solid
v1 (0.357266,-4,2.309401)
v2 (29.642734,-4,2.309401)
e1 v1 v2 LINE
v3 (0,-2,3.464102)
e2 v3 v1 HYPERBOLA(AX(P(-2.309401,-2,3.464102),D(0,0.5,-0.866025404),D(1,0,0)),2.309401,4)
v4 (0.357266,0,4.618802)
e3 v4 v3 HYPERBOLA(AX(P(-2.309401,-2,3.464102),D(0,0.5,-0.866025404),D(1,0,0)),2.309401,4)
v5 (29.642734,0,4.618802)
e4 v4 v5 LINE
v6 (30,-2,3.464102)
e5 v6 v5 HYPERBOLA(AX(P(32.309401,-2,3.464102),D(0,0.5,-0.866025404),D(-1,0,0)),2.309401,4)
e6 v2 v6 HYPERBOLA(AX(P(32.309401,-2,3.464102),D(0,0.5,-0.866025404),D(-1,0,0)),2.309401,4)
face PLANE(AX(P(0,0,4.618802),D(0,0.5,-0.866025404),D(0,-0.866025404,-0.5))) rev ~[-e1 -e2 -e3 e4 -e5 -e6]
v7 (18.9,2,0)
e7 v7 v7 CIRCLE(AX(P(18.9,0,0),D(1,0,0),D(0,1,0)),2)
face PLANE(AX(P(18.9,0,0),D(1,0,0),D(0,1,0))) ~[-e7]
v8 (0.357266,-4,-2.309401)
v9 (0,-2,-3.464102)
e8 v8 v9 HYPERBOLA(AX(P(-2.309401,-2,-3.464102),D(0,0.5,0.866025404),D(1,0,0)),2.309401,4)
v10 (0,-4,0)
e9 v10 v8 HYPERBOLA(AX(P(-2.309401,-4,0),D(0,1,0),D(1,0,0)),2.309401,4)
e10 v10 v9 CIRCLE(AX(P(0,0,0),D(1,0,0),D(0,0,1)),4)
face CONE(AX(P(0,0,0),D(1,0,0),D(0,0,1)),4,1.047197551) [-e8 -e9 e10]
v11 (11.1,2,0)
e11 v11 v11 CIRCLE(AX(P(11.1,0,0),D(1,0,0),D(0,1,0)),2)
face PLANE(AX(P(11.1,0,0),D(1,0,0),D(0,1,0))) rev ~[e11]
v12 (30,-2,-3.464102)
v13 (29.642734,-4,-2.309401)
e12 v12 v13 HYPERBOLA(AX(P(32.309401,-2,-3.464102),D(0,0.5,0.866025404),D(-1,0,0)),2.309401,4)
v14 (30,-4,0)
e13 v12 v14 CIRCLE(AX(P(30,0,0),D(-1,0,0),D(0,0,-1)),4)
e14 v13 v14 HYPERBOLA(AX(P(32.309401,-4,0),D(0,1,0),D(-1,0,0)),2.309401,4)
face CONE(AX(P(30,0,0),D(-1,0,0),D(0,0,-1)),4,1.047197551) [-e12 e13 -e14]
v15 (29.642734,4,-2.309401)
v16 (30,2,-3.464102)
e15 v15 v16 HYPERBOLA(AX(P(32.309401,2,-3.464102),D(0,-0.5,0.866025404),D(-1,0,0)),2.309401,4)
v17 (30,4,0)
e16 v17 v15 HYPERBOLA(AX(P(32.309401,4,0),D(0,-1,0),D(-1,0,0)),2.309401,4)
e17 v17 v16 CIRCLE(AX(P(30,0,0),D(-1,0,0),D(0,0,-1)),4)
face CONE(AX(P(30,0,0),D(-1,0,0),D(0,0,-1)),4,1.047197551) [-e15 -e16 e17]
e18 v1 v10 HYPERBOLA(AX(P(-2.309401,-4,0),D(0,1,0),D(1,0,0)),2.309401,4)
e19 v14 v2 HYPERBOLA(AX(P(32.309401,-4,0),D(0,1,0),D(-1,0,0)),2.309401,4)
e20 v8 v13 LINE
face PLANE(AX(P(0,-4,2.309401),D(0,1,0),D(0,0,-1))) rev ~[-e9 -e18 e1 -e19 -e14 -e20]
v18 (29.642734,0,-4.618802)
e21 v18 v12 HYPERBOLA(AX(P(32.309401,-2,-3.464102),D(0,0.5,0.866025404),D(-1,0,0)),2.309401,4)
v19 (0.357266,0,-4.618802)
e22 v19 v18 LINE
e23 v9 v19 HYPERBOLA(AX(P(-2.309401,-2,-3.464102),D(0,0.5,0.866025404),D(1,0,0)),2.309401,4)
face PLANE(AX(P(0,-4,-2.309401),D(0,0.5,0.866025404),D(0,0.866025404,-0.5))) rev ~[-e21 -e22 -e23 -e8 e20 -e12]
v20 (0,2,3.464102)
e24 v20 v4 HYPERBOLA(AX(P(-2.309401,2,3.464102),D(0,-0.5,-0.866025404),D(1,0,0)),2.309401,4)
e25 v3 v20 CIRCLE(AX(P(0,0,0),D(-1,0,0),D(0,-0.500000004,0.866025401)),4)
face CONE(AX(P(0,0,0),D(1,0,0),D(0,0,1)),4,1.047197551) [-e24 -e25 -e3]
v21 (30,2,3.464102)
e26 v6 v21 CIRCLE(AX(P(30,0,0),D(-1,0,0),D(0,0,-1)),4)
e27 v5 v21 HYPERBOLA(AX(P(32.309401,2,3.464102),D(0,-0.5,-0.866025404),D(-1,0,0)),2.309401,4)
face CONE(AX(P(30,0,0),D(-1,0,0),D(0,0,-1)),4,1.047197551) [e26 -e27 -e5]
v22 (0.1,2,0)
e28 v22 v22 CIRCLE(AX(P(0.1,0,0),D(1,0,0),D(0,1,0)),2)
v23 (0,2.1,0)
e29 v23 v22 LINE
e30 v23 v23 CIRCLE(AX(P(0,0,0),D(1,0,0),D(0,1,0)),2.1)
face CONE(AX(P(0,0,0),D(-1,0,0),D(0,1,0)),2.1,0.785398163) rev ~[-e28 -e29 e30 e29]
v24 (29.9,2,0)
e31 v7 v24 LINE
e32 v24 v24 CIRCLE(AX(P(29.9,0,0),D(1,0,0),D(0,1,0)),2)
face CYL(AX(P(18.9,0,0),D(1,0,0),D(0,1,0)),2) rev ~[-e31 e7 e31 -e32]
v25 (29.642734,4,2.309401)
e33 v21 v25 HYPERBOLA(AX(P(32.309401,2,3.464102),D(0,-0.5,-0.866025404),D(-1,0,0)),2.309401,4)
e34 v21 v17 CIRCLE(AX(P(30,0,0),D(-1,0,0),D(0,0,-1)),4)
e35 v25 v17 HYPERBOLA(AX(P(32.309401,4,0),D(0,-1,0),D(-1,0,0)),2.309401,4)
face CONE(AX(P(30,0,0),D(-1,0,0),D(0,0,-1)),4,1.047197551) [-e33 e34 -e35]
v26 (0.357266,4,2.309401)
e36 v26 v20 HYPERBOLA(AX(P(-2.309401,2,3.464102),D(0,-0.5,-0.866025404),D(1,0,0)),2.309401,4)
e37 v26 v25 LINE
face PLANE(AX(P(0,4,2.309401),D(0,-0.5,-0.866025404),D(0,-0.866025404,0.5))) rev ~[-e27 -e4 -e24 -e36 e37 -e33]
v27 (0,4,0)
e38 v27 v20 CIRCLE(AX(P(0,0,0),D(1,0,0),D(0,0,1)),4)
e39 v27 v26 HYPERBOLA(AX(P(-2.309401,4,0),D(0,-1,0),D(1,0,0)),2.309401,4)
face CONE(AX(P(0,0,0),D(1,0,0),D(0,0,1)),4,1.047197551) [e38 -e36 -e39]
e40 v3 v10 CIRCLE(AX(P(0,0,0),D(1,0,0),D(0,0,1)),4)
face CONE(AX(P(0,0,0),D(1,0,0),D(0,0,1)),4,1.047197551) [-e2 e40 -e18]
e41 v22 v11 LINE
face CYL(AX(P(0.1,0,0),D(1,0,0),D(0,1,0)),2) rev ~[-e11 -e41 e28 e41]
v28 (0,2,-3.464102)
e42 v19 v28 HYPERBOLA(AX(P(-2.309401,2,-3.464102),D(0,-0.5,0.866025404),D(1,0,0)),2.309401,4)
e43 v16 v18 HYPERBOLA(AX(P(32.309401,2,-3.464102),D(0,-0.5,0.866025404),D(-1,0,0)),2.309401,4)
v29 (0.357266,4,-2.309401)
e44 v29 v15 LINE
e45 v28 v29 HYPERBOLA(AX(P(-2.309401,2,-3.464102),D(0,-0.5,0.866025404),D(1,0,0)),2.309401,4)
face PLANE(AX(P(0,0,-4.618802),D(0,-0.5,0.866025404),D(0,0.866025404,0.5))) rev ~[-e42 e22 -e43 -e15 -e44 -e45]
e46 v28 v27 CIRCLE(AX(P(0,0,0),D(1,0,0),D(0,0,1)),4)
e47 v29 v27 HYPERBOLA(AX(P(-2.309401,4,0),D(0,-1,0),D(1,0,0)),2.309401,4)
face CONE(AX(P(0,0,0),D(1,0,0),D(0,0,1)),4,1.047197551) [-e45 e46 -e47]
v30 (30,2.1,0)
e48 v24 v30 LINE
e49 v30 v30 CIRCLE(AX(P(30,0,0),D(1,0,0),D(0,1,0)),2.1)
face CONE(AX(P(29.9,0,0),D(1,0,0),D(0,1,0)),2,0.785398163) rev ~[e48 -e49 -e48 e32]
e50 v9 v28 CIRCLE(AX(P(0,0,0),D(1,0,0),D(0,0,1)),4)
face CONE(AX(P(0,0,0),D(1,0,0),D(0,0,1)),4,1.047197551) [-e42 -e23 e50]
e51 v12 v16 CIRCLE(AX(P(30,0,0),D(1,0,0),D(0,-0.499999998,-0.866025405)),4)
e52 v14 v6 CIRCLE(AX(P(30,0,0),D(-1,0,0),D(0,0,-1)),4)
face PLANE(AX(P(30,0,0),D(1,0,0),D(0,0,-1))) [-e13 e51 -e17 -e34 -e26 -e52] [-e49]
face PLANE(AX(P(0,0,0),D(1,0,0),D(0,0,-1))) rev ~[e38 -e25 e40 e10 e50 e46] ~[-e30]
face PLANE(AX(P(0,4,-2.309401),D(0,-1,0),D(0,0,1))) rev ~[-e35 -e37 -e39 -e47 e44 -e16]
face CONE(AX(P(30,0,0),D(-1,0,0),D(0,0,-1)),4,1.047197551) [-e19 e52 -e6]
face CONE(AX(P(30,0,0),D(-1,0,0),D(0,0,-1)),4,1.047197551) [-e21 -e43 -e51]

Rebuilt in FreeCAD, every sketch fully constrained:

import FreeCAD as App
import Part
import Sketcher
Q = App.Units.Quantity

doc = App.newDocument("Part")
params = doc.addObject("Spreadsheet::Sheet", "Params")
for row, (alias, value) in enumerate([
    ("pad1_length", "30 mm"),
    ("sketch2_width", "11 mm"),
    ("sketch2_height", "2 mm"),
    ("sketch2_width2", "11.1 mm"),
    ("groove_angle", "360 deg"),
    ("sketch3_diameter", "8 mm"),
    ("pocket1_length", "31 mm"),
    ("pocket1_taper", "60 deg"),
    ("sketch4_diameter", "8 mm"),
    ("pocket2_length", "31 mm"),
    ("pocket2_taper", "60 deg"),
], start=1):
    params.set(f"A{row}", alias)
    params.set(f"B{row}", "=" + value)
    params.setAlias(f"B{row}", alias)

body = doc.addObject("PartDesign::Body", "Body")

# Sketch on YZ plane
sketch1 = doc.addObject("Sketcher::SketchObject", "Sketch")
body.addObject(sketch1)
sketch1.AttachmentSupport = (doc.YZ_Plane, [""])
sketch1.MapMode = "FlatFace"
sketch1.addGeometry(Part.LineSegment(App.Vector(4, -2.3, 0), App.Vector(4, 2.3, 0)), False)
sketch1.addGeometry(Part.LineSegment(App.Vector(4, 2.3, 0), App.Vector(0, 4.6, 0)), False)
sketch1.addGeometry(Part.LineSegment(App.Vector(0, 4.6, 0), App.Vector(-4, 2.3, 0)), False)
sketch1.addGeometry(Part.LineSegment(App.Vector(-4, 2.3, 0), App.Vector(-4, -2.3, 0)), False)
sketch1.addGeometry(Part.LineSegment(App.Vector(-4, -2.3, 0), App.Vector(0, -4.6, 0)), False)
sketch1.addGeometry(Part.LineSegment(App.Vector(0, -4.6, 0), App.Vector(4, -2.3, 0)), False)
sketch1.addConstraint(Sketcher.Constraint("Coincident", 0, 2, 1, 1))
sketch1.addConstraint(Sketcher.Constraint("Coincident", 1, 2, 2, 1))
sketch1.addConstraint(Sketcher.Constraint("Coincident", 2, 2, 3, 1))
sketch1.addConstraint(Sketcher.Constraint("Coincident", 3, 2, 4, 1))
sketch1.addConstraint(Sketcher.Constraint("Coincident", 4, 2, 5, 1))
sketch1.addConstraint(Sketcher.Constraint("Coincident", 5, 2, 0, 1))
sketch1.addConstraint(Sketcher.Constraint("Vertical", 0))
sketch1.addConstraint(Sketcher.Constraint("Vertical", 3))
sketch1.addConstraint(Sketcher.Constraint("Symmetric", 0, 2, 3, 2, -1, 1))
sketch1.addConstraint(Sketcher.Constraint("Symmetric", 1, 2, 4, 2, -1, 1))
sketch1.addConstraint(Sketcher.Constraint("PointOnObject", 1, 2, -2))
sketch1.addConstraint(Sketcher.Constraint("Parallel", 2, 5))
sketch1.addConstraint(Sketcher.Constraint("Horizontal", 0, 2, 2, 2))
sketch1.addConstraint(Sketcher.Constraint("Angle", 1, Q("150 deg")))
sketch1.addConstraint(Sketcher.Constraint("DistanceX", -1, 1, 0, 2, Q("4 mm")))
sketch1.addConstraint(Sketcher.Constraint("DistanceY", -1, 1, 0, 2, Q("2.309401 mm")))
pad1 = doc.addObject("PartDesign::Pad", "Pad")
body.addObject(pad1)
pad1.Profile = sketch1
pad1.setExpression("Length", "Params.pad1_length")

# Sketch on XY plane
sketch2 = doc.addObject("Sketcher::SketchObject", "Sketch001")
body.addObject(sketch2)
sketch2.AttachmentSupport = (doc.XY_Plane, [""])
sketch2.MapMode = "FlatFace"
sketch2.addGeometry(Part.LineSegment(App.Vector(0.1, 2, 0), App.Vector(0, 2.1, 0)), False)
sketch2.addGeometry(Part.LineSegment(App.Vector(0, 2.1, 0), App.Vector(0, 0, 0)), False)
sketch2.addGeometry(Part.LineSegment(App.Vector(0, 0, 0), App.Vector(11.1, 0, 0)), False)
sketch2.addGeometry(Part.LineSegment(App.Vector(11.1, 0, 0), App.Vector(11.1, 2, 0)), False)
sketch2.addGeometry(Part.LineSegment(App.Vector(11.1, 2, 0), App.Vector(0.1, 2, 0)), False)
sketch2.addGeometry(Part.LineSegment(App.Vector(18.9, 0, 0), App.Vector(30, 0, 0)), False)
sketch2.addGeometry(Part.LineSegment(App.Vector(30, 0, 0), App.Vector(30, 2.1, 0)), False)
sketch2.addGeometry(Part.LineSegment(App.Vector(30, 2.1, 0), App.Vector(29.9, 2, 0)), False)
sketch2.addGeometry(Part.LineSegment(App.Vector(29.9, 2, 0), App.Vector(18.9, 2, 0)), False)
sketch2.addGeometry(Part.LineSegment(App.Vector(18.9, 2, 0), App.Vector(18.9, 0, 0)), False)
sketch2.addConstraint(Sketcher.Constraint("Coincident", 0, 2, 1, 1))
sketch2.addConstraint(Sketcher.Constraint("Coincident", 1, 2, 2, 1))
sketch2.addConstraint(Sketcher.Constraint("Coincident", 2, 2, 3, 1))
sketch2.addConstraint(Sketcher.Constraint("Coincident", 3, 2, 4, 1))
sketch2.addConstraint(Sketcher.Constraint("Coincident", 4, 2, 0, 1))
sketch2.addConstraint(Sketcher.Constraint("Coincident", 5, 2, 6, 1))
sketch2.addConstraint(Sketcher.Constraint("Coincident", 6, 2, 7, 1))
sketch2.addConstraint(Sketcher.Constraint("Coincident", 7, 2, 8, 1))
sketch2.addConstraint(Sketcher.Constraint("Coincident", 8, 2, 9, 1))
sketch2.addConstraint(Sketcher.Constraint("Coincident", 9, 2, 5, 1))
sketch2.addConstraint(Sketcher.Constraint("Vertical", 1))
sketch2.addConstraint(Sketcher.Constraint("Horizontal", 2))
sketch2.addConstraint(Sketcher.Constraint("Vertical", 3))
sketch2.addConstraint(Sketcher.Constraint("Horizontal", 4))
sketch2.addConstraint(Sketcher.Constraint("Horizontal", 5))
sketch2.addConstraint(Sketcher.Constraint("Vertical", 6))
sketch2.addConstraint(Sketcher.Constraint("Horizontal", 8))
sketch2.addConstraint(Sketcher.Constraint("Vertical", 9))
sketch2.addConstraint(Sketcher.Constraint("Coincident", 1, 2, -1, 1))
sketch2.addConstraint(Sketcher.Constraint("PointOnObject", 5, 2, -1))
sketch2.addConstraint(Sketcher.Constraint("Perpendicular", 0, 7))
sketch2.addConstraint(Sketcher.Constraint("Horizontal", 0, 2, 6, 2))
sketch2.addConstraint(Sketcher.Constraint("Horizontal", 4, 2, 7, 2))
sketch2.addConstraint(Sketcher.Constraint("Equal", 2, 5))
sketch2.addConstraint(Sketcher.Constraint("Equal", 4, 8))
sketch2.addConstraint(Sketcher.Constraint("DistanceX", 4, 2, 4, 1, Q("11 mm")))
sketch2.addConstraint(Sketcher.Constraint("DistanceY", 3, 1, 3, 2, Q("2 mm")))
sketch2.addConstraint(Sketcher.Constraint("DistanceX", 2, 1, 2, 2, Q("11.1 mm")))
sketch2.addConstraint(Sketcher.Constraint("DistanceX", -1, 1, 5, 2, Q("30 mm")))
sketch2.setExpression("Constraints[25]", "Params.sketch2_width")
sketch2.setExpression("Constraints[26]", "Params.sketch2_height")
sketch2.setExpression("Constraints[27]", "Params.sketch2_width2")
groove = doc.addObject("PartDesign::Groove", "Groove")
body.addObject(groove)
groove.Profile = sketch2
groove.ReferenceAxis = (sketch2, ["H_Axis"])
groove.setExpression("Angle", "Params.groove_angle")

# Sketch on YZ plane
sketch3 = doc.addObject("Sketcher::SketchObject", "Sketch002")
body.addObject(sketch3)
sketch3.AttachmentSupport = (doc.YZ_Plane, [""])
sketch3.MapMode = "FlatFace"
sketch3.addGeometry(Part.LineSegment(App.Vector(61.9, -62.6, 0), App.Vector(-61.9, -62.6, 0)), False)
sketch3.addGeometry(Part.LineSegment(App.Vector(-61.9, -62.6, 0), App.Vector(-61.9, 62.6, 0)), False)
sketch3.addGeometry(Part.LineSegment(App.Vector(-61.9, 62.6, 0), App.Vector(61.9, 62.6, 0)), False)
sketch3.addGeometry(Part.LineSegment(App.Vector(61.9, 62.6, 0), App.Vector(61.9, -62.6, 0)), False)
sketch3.addGeometry(Part.Circle(App.Vector(0, 0, 0), App.Vector(0, 0, 1), 4), False)
sketch3.addConstraint(Sketcher.Constraint("Coincident", 0, 2, 1, 1))
sketch3.addConstraint(Sketcher.Constraint("Coincident", 1, 2, 2, 1))
sketch3.addConstraint(Sketcher.Constraint("Coincident", 2, 2, 3, 1))
sketch3.addConstraint(Sketcher.Constraint("Coincident", 3, 2, 0, 1))
sketch3.addConstraint(Sketcher.Constraint("Horizontal", 0))
sketch3.addConstraint(Sketcher.Constraint("Vertical", 1))
sketch3.addConstraint(Sketcher.Constraint("Horizontal", 2))
sketch3.addConstraint(Sketcher.Constraint("Vertical", 3))
sketch3.addConstraint(Sketcher.Constraint("Coincident", 4, 3, -1, 1))
sketch3.addConstraint(Sketcher.Constraint("Symmetric", 0, 2, 2, 2, -1, 1))
sketch3.addConstraint(Sketcher.Constraint("Diameter", 4, Q("8 mm")))
sketch3.addConstraint(Sketcher.Constraint("DistanceX", 0, 2, 0, 1, Q("123.866 mm")))
sketch3.addConstraint(Sketcher.Constraint("DistanceY", 1, 1, 1, 2, Q("125.104 mm")))
sketch3.setExpression("Constraints[10]", "Params.sketch3_diameter")
pocket1 = doc.addObject("PartDesign::Pocket", "Pocket")
body.addObject(pocket1)
pocket1.Profile = sketch3
pocket1.setExpression("Length", "Params.pocket1_length")
pocket1.Reversed = True
pocket1.setExpression("TaperAngle", "Params.pocket1_taper")

# Sketch on YZ plane
sketch4 = doc.addObject("Sketcher::SketchObject", "Sketch003")
body.addObject(sketch4)
sketch4.AttachmentSupport = (doc.YZ_Plane, [""])
sketch4.MapMode = "FlatFace"
sketch4.AttachmentOffset = App.Placement(App.Vector(0, 0, 30), App.Rotation())
sketch4.addGeometry(Part.LineSegment(App.Vector(61.9, 62.6, 0), App.Vector(-61.9, 62.6, 0)), False)
sketch4.addGeometry(Part.LineSegment(App.Vector(-61.9, 62.6, 0), App.Vector(-61.9, -62.6, 0)), False)
sketch4.addGeometry(Part.LineSegment(App.Vector(-61.9, -62.6, 0), App.Vector(61.9, -62.6, 0)), False)
sketch4.addGeometry(Part.LineSegment(App.Vector(61.9, -62.6, 0), App.Vector(61.9, 62.6, 0)), False)
sketch4.addGeometry(Part.Circle(App.Vector(0, 0, 0), App.Vector(0, 0, 1), 4), False)
sketch4.addConstraint(Sketcher.Constraint("Coincident", 0, 2, 1, 1))
sketch4.addConstraint(Sketcher.Constraint("Coincident", 1, 2, 2, 1))
sketch4.addConstraint(Sketcher.Constraint("Coincident", 2, 2, 3, 1))
sketch4.addConstraint(Sketcher.Constraint("Coincident", 3, 2, 0, 1))
sketch4.addConstraint(Sketcher.Constraint("Horizontal", 0))
sketch4.addConstraint(Sketcher.Constraint("Vertical", 1))
sketch4.addConstraint(Sketcher.Constraint("Horizontal", 2))
sketch4.addConstraint(Sketcher.Constraint("Vertical", 3))
sketch4.addConstraint(Sketcher.Constraint("Coincident", 4, 3, -1, 1))
sketch4.addConstraint(Sketcher.Constraint("Symmetric", 0, 2, 2, 2, -1, 1))
sketch4.addConstraint(Sketcher.Constraint("Diameter", 4, Q("8 mm")))
sketch4.addConstraint(Sketcher.Constraint("DistanceX", 0, 2, 0, 1, Q("123.866 mm")))
sketch4.addConstraint(Sketcher.Constraint("DistanceY", 1, 2, 1, 1, Q("125.104 mm")))
sketch4.setExpression("Constraints[10]", "Params.sketch4_diameter")
pocket2 = doc.addObject("PartDesign::Pocket", "Pocket001")
body.addObject(pocket2)
pocket2.Profile = sketch4
pocket2.setExpression("Length", "Params.pocket2_length")
pocket2.setExpression("TaperAngle", "Params.pocket2_taper")

doc.recompute()
